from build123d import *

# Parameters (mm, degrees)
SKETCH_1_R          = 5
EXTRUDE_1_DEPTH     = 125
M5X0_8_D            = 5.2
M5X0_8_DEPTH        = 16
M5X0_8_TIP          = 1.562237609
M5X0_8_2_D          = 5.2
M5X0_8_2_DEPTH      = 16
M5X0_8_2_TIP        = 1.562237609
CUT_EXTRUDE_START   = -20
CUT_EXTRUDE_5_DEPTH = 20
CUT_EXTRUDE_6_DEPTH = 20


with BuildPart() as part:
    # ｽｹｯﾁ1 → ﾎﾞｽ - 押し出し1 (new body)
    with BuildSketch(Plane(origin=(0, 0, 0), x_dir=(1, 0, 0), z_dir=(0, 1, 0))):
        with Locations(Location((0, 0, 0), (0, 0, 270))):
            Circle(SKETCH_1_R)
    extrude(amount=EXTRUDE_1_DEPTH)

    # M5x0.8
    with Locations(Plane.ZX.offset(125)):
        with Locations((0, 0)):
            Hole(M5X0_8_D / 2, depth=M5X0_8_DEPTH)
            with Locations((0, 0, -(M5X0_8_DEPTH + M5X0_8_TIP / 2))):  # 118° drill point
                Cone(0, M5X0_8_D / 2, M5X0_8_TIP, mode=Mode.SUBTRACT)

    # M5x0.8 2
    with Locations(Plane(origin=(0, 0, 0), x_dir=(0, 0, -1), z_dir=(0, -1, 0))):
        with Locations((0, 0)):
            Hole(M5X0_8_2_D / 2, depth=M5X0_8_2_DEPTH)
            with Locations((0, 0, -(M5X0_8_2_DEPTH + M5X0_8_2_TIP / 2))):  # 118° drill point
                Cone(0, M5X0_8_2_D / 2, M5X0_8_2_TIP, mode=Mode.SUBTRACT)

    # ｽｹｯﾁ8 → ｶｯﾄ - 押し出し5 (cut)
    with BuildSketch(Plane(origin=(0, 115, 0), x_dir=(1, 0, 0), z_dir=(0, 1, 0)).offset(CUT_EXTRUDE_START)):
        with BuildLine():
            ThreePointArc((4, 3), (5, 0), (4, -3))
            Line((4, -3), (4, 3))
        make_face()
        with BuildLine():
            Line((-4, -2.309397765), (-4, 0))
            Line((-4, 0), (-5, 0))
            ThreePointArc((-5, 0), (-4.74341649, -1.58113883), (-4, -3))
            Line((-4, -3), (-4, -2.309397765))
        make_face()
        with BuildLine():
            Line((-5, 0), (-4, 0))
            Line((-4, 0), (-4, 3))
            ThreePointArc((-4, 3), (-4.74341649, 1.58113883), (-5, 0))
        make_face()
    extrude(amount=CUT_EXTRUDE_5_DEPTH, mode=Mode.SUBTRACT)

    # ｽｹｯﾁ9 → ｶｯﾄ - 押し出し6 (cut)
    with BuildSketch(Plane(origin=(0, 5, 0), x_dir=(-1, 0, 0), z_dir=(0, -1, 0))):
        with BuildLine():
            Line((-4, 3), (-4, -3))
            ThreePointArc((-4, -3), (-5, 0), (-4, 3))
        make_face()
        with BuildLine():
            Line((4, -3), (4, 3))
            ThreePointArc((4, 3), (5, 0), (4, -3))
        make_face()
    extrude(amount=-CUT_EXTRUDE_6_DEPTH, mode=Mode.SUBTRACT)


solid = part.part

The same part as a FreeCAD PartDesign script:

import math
import FreeCAD as App
import Part
import Sketcher

V = App.Vector
Q = App.Units.Quantity

doc = App.newDocument("Part")
params = doc.addObject("Spreadsheet::Sheet", "Params")
for row, (alias, value) in enumerate([
    ("sketch1_diameter", "10 mm"),
    ("pad1_length", "125 mm"),
    ("sketch2_diameter", "5.2 mm"),
    ("hole_diameter", "5.2 mm"),
    ("hole_depth", "16 mm"),
    ("sketch3_diameter", "5.2 mm"),
    ("hole2_diameter", "5.2 mm"),
    ("hole2_depth", "16 mm"),
    ("sketch4_radius", "5 mm"),
    ("sketch4_height", "6 mm"),
    ("pocket1_length", "20 mm"),
    ("sketch5_radius", "5 mm"),
    ("sketch5_height", "6 mm"),
    ("pocket2_length", "20 mm"),
], start=1):
    params.set(f"A{row}", alias)
    params.set(f"B{row}", "=" + value)
    params.setAlias(f"B{row}", alias)

body = doc.addObject("PartDesign::Body", "Body")

sketch1 = body.newObject("Sketcher::SketchObject", "Sketch")
sketch1.AttachmentSupport = (doc.getObject("XZ_Plane"), [""])
sketch1.MapMode = "FlatFace"
sketch1.addGeometry(Part.Circle(V(0, 0, 0), V(0, 0, 1), 5), False)
sketch1.addConstraint([
    Sketcher.Constraint("Coincident", 0, 3, -1, 1),
    Sketcher.Constraint("Diameter", 0, Q("10 mm")),
])
sketch1.setExpression("Constraints[1]", "Params.sketch1_diameter")
pad1 = body.newObject("PartDesign::Pad", "Pad")
pad1.Profile = sketch1
pad1.setExpression("Length", "Params.pad1_length")
pad1.Reversed = True

sketch2 = body.newObject("Sketcher::SketchObject", "Sketch001")
sketch2.AttachmentSupport = (doc.getObject("XZ_Plane"), [""])
sketch2.MapMode = "FlatFace"
sketch2.AttachmentOffset = App.Placement(V(0, 0, -125), App.Rotation())
sketch2.addGeometry(Part.Circle(V(0, 0, 0), V(0, 0, 1), 2.6), False)
sketch2.addConstraint([
    Sketcher.Constraint("Coincident", 0, 3, -1, 1),
    Sketcher.Constraint("Diameter", 0, Q("5.2 mm")),
])
sketch2.setExpression("Constraints[1]", "Params.sketch2_diameter")
doc.recompute()
hole = body.newObject("PartDesign::Hole", "Hole")
hole.Profile = sketch2
hole.ThreadType = "None"
hole.setExpression("Diameter", "Params.hole_diameter")
hole.DepthType = "Dimension"
hole.setExpression("Depth", "Params.hole_depth")
hole.DrillPoint = "Angled"
hole.DrillPointAngle = 118
hole.Reversed = True

sketch3 = body.newObject("Sketcher::SketchObject", "Sketch002")
sketch3.AttachmentSupport = (doc.getObject("XZ_Plane"), [""])
sketch3.MapMode = "FlatFace"
sketch3.addGeometry(Part.Circle(V(0, 0, 0), V(0, 0, 1), 2.6), False)
sketch3.addConstraint([
    Sketcher.Constraint("Coincident", 0, 3, -1, 1),
    Sketcher.Constraint("Diameter", 0, Q("5.2 mm")),
])
sketch3.setExpression("Constraints[1]", "Params.sketch3_diameter")
doc.recompute()
hole2 = body.newObject("PartDesign::Hole", "Hole001")
hole2.Profile = sketch3
hole2.ThreadType = "None"
hole2.setExpression("Diameter", "Params.hole2_diameter")
hole2.DepthType = "Dimension"
hole2.setExpression("Depth", "Params.hole2_depth")
hole2.DrillPoint = "Angled"
hole2.DrillPointAngle = 118

sketch4 = body.newObject("Sketcher::SketchObject", "Sketch003")
sketch4.AttachmentSupport = (doc.getObject("XZ_Plane"), [""])
sketch4.MapMode = "FlatFace"
sketch4.AttachmentOffset = App.Placement(V(0, 0, -95), App.Rotation())
sketch4.addGeometry([
    Part.ArcOfCircle(Part.Circle(V(0, 0, 0), V(0, 0, 1), 5), math.radians(-37), math.radians(37)),
    Part.LineSegment(V(4, -3, 0), V(4, 3, 0)),
    Part.ArcOfCircle(Part.Circle(V(0, 0, 0), V(0, 0, 1), 5), math.radians(143), math.radians(180)),
    Part.LineSegment(V(-4, 3, 0), V(-4, -3, 0)),
    Part.ArcOfCircle(Part.Circle(V(0, 0, 0), V(0, 0, 1), 5), math.radians(-180), math.radians(-143)),
], False)
sketch4.addConstraint([
    Sketcher.Constraint("Coincident", 0, 1, 1, 1),
    Sketcher.Constraint("Coincident", 1, 2, 0, 2),
    Sketcher.Constraint("Coincident", 2, 1, 3, 1),
    Sketcher.Constraint("Coincident", 3, 2, 4, 2),
    Sketcher.Constraint("Tangent", 4, 1, 2, 2),
    Sketcher.Constraint("Vertical", 1),
    Sketcher.Constraint("Vertical", 3),
    Sketcher.Constraint("Coincident", 0, 3, -1, 1),
    Sketcher.Constraint("Coincident", 2, 3, -1, 1),
    Sketcher.Constraint("Equal", 0, 2),
    Sketcher.Constraint("Equal", 2, 4),
    Sketcher.Constraint("PointOnObject", 4, 1, -1),
    Sketcher.Constraint("Horizontal", 1, 2, 2, 1),
    Sketcher.Constraint("Radius", 0, Q("5 mm")),
    Sketcher.Constraint("DistanceY", 1, 1, 1, 2, Q("6 mm")),
])
sketch4.setExpression("Constraints[13]", "Params.sketch4_radius")
sketch4.setExpression("Constraints[14]", "Params.sketch4_height")
pocket1 = body.newObject("PartDesign::Pocket", "Pocket")
pocket1.Profile = sketch4
pocket1.setExpression("Length", "Params.pocket1_length")

sketch5 = body.newObject("Sketcher::SketchObject", "Sketch004")
sketch5.AttachmentSupport = (doc.getObject("XZ_Plane"), [""])
sketch5.MapMode = "FlatFace"
sketch5.AttachmentOffset = App.Placement(V(0, 0, -5), App.Rotation())
sketch5.addGeometry([
    Part.LineSegment(V(4, 3, 0), V(4, -3, 0)),
    Part.ArcOfCircle(Part.Circle(V(0, 0, 0), V(0, 0, 1), 5), math.radians(-37), math.radians(37)),
    Part.LineSegment(V(-4, -3, 0), V(-4, 3, 0)),
    Part.ArcOfCircle(Part.Circle(V(0, 0, 0), V(0, 0, 1), 5), math.radians(143), math.radians(217)),
], False)
sketch5.addConstraint([
    Sketcher.Constraint("Coincident", 0, 1, 1, 2),
    Sketcher.Constraint("Coincident", 1, 1, 0, 2),
    Sketcher.Constraint("Coincident", 2, 1, 3, 2),
    Sketcher.Constraint("Coincident", 3, 1, 2, 2),
    Sketcher.Constraint("Vertical", 0),
    Sketcher.Constraint("Vertical", 2),
    Sketcher.Constraint("Coincident", 1, 3, -1, 1),
    Sketcher.Constraint("Coincident", 3, 3, -1, 1),
    Sketcher.Constraint("Equal", 1, 3),
    Sketcher.Constraint("Horizontal", 1, 1, 2, 1),
    Sketcher.Constraint("Radius", 1, Q("5 mm")),
    Sketcher.Constraint("DistanceY", 0, 2, 0, 1, Q("6 mm")),
])
sketch5.setExpression("Constraints[10]", "Params.sketch5_radius")
sketch5.setExpression("Constraints[11]", "Params.sketch5_height")
pocket2 = body.newObject("PartDesign::Pocket", "Pocket001")
pocket2.Profile = sketch5
pocket2.setExpression("Length", "Params.pocket2_length")

doc.recompute()
